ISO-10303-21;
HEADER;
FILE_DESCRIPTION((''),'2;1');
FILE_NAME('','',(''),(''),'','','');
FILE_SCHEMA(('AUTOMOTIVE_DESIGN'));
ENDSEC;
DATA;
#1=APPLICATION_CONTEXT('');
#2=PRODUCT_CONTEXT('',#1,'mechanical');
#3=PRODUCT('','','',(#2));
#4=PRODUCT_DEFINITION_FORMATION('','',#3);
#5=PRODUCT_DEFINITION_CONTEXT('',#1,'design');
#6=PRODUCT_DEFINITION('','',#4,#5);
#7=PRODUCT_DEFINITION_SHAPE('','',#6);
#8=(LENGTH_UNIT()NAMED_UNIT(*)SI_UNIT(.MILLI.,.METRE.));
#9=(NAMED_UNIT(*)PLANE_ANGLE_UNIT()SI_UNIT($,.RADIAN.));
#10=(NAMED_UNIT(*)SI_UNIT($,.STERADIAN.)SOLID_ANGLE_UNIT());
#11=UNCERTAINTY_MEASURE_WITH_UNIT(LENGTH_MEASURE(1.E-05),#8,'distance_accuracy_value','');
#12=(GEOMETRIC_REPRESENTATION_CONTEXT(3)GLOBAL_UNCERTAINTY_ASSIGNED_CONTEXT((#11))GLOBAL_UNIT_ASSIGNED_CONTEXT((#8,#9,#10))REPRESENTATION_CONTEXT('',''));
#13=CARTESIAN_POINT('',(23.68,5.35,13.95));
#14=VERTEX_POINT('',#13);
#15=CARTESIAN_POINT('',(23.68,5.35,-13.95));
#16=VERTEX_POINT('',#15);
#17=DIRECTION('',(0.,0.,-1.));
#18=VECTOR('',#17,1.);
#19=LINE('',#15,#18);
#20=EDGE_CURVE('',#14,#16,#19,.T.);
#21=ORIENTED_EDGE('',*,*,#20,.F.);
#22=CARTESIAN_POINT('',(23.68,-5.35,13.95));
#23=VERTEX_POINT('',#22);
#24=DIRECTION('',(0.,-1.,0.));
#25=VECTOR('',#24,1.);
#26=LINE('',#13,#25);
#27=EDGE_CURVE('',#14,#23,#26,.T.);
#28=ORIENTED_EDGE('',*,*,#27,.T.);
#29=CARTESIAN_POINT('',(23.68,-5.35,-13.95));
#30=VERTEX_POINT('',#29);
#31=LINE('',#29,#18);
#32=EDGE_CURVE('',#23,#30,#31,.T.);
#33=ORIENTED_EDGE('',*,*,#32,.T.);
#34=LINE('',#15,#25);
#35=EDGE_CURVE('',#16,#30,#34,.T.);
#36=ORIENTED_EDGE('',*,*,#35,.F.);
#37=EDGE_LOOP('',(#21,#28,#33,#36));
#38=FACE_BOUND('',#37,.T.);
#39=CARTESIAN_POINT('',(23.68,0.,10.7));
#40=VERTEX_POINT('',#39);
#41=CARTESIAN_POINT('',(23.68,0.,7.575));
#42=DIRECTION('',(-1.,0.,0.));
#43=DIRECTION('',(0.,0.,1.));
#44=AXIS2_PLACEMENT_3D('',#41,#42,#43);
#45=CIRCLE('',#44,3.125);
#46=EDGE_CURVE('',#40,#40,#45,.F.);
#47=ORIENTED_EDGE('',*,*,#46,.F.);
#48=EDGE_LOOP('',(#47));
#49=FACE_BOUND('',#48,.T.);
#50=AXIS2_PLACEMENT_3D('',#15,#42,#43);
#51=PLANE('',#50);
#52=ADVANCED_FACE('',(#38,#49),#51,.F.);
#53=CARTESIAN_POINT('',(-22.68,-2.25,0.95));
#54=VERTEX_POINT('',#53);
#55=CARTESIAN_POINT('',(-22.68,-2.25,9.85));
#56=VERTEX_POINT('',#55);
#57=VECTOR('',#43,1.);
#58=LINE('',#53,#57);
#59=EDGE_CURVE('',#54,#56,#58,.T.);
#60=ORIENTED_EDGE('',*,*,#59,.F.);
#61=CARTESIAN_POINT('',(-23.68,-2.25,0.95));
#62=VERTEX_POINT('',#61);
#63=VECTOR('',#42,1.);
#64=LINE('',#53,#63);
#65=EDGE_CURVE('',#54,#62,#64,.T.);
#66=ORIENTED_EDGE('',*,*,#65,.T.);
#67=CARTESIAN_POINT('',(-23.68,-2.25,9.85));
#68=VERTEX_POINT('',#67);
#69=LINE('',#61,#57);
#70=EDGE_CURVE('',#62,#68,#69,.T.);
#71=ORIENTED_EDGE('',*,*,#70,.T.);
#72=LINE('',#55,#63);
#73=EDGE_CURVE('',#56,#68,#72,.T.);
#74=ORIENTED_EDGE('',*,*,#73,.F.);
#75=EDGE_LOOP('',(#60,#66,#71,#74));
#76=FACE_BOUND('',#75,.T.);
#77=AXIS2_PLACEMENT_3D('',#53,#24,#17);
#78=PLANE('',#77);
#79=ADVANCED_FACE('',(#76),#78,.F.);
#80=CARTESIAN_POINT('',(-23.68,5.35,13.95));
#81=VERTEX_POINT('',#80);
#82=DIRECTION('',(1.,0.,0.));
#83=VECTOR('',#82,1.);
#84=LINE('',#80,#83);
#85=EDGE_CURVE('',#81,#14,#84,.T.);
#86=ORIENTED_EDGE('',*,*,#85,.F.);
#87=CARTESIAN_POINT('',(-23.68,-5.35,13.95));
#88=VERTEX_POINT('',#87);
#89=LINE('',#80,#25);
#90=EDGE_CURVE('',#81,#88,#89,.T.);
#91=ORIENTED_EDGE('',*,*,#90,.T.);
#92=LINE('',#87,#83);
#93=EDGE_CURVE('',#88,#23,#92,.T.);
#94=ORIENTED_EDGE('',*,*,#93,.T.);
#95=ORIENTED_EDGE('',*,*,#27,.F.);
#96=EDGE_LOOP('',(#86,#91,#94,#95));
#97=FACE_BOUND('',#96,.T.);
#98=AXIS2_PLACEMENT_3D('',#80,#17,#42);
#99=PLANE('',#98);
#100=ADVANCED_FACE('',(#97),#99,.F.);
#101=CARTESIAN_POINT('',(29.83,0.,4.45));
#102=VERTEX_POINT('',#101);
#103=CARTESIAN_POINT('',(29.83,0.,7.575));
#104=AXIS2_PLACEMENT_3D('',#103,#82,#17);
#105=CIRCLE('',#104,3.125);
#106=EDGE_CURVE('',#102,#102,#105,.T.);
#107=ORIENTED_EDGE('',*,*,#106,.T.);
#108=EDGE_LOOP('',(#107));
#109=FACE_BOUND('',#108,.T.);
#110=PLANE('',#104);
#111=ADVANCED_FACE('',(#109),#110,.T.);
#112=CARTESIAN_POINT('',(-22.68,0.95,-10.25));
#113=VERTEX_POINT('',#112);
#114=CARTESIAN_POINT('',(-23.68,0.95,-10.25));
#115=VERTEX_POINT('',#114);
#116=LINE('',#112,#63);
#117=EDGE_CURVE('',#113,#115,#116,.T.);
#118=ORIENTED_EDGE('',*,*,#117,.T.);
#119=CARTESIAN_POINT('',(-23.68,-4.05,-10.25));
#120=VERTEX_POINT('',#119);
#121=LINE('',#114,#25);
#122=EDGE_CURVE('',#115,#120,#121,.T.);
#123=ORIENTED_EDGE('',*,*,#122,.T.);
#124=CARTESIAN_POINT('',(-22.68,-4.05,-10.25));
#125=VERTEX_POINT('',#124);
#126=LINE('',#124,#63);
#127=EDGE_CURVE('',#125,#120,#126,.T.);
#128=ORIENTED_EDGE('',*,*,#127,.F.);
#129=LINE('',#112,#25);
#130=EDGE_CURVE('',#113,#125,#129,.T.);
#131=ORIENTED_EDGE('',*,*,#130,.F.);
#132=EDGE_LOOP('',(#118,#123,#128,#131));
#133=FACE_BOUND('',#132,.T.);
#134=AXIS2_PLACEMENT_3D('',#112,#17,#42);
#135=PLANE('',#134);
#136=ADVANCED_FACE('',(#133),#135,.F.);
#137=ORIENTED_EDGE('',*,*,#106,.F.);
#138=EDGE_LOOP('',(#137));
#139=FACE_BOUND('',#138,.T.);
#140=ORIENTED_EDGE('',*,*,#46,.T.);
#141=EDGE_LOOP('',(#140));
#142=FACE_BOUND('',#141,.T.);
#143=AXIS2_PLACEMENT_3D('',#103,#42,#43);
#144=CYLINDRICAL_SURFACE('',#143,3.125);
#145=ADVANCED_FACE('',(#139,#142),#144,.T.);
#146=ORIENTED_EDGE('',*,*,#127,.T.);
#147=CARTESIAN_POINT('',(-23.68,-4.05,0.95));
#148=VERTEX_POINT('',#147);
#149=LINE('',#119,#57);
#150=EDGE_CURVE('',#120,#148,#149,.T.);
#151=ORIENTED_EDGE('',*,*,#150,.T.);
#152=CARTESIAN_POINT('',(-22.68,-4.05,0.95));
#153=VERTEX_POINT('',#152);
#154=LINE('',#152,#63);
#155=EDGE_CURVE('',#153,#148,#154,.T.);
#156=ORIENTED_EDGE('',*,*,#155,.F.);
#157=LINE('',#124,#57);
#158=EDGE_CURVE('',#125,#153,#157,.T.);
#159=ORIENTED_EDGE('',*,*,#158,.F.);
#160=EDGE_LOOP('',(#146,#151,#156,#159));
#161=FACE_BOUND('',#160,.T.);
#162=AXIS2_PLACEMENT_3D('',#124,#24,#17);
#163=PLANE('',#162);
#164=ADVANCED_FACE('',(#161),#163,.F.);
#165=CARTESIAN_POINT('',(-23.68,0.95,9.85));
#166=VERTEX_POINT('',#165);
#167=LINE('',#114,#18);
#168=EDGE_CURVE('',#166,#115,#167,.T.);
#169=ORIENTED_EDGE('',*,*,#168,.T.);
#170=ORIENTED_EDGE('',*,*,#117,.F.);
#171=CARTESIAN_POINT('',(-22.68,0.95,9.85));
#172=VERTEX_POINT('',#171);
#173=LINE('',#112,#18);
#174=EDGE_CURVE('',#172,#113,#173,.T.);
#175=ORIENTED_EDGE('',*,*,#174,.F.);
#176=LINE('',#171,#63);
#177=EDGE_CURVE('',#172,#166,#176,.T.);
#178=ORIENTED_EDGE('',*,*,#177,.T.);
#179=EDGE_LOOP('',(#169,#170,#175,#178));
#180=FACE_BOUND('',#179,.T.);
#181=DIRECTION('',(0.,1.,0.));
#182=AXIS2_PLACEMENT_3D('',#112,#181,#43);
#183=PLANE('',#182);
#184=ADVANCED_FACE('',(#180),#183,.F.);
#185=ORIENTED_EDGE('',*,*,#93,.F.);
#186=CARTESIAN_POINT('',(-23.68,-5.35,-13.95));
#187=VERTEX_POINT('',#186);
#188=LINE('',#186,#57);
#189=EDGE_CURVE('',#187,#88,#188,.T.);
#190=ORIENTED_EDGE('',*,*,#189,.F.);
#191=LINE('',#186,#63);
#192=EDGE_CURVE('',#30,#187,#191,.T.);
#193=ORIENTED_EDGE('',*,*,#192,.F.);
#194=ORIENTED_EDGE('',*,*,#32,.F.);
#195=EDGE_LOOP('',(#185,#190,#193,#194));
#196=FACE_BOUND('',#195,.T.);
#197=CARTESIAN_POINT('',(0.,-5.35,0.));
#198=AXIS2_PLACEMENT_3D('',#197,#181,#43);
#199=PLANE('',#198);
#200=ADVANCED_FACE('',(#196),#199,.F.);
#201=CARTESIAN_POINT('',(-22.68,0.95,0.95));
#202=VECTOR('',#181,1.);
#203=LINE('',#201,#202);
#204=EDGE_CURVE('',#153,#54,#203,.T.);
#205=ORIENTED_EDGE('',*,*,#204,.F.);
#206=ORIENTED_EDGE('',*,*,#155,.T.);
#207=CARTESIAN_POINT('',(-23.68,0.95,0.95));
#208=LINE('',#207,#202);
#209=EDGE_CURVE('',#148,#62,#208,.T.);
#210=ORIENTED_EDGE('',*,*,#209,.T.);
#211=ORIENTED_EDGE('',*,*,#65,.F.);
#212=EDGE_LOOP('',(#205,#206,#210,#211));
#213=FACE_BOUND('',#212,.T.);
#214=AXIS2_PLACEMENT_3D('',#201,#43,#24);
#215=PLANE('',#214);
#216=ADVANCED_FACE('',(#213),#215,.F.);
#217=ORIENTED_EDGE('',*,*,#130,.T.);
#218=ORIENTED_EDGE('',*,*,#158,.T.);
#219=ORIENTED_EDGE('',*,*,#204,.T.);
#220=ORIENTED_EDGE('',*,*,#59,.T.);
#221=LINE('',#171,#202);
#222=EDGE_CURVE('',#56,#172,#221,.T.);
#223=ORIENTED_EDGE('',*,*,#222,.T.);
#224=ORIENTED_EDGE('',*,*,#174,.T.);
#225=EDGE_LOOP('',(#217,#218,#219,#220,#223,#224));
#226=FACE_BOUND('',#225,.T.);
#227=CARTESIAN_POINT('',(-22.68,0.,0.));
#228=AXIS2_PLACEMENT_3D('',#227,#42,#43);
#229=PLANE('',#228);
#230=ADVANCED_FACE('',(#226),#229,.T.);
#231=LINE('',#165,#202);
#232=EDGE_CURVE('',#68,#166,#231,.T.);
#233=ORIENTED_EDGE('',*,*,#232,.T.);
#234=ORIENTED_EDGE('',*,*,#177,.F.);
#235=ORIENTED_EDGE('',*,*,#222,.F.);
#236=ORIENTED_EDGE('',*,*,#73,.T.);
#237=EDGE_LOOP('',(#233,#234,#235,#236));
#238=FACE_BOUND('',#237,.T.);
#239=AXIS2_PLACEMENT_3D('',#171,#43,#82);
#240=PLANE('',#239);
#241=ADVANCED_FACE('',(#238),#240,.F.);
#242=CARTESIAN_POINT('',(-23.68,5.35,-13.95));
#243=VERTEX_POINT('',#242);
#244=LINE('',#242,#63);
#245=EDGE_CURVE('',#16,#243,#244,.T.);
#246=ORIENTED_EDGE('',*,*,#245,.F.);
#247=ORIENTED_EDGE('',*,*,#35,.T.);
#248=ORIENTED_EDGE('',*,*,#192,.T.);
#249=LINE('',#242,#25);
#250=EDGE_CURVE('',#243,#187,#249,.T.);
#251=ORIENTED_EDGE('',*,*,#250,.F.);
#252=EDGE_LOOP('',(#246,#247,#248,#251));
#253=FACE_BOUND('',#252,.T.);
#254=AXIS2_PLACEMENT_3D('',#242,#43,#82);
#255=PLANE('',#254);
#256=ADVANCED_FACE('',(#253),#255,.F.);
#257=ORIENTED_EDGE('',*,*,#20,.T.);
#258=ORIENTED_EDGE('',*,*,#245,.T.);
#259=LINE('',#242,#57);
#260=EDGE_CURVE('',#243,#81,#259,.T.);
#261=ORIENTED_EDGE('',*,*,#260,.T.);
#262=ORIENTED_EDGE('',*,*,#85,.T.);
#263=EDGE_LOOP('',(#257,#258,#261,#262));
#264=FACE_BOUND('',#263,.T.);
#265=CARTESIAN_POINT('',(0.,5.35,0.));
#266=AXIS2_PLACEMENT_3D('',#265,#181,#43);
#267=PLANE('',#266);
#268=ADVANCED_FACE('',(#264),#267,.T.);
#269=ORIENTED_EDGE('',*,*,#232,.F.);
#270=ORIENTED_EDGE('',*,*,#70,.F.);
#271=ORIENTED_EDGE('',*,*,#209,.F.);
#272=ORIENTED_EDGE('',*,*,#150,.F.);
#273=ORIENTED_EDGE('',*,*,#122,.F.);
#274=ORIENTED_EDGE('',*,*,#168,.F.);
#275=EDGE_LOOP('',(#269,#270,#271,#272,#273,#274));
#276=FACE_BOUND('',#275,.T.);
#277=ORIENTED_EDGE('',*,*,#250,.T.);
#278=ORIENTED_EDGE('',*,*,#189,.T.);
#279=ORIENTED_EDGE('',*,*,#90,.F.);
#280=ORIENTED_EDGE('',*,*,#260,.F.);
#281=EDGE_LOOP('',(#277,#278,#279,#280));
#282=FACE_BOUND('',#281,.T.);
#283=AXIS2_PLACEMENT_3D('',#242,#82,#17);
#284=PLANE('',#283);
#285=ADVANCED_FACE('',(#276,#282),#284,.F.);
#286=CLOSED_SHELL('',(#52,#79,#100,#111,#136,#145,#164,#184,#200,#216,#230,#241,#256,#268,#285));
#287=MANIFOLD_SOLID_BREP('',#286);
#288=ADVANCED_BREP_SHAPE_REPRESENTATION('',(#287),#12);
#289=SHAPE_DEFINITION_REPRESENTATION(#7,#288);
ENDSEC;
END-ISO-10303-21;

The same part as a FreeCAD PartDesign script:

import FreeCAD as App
import Part
import Sketcher
from FreeCAD import Vector


def add_polygon(sketch, points):
    """Adds a closed chain of lines whose ends are joined by coincident constraints."""
    first, n = sketch.GeometryCount, len(points)
    for a, b in zip(points, points[1:] + points[:1]):
        sketch.addGeometry(Part.LineSegment(App.Vector(*a, 0), App.Vector(*b, 0)), False)
    for i in range(n):
        sketch.addConstraint(Sketcher.Constraint("Coincident", first + i, 2, first + (i + 1) % n, 1))

doc = App.newDocument("Part")
params = doc.addObject("Spreadsheet::Sheet", "Params")
for row, (alias, value) in enumerate([
    ("sketch1_height", "27.9 mm"),
    ("sketch1_width", "47.36 mm"),
    ("pad1_length", "10.7 mm"),
    ("sketch2_diameter", "6.25 mm"),
    ("pad2_length", "6.15 mm"),
    ("sketch3_width", "5 mm"),
    ("sketch3_height", "11.2 mm"),
    ("pocket1_length", "1 mm"),
    ("sketch4_width", "3.2 mm"),
    ("sketch4_height", "8.9 mm"),
    ("pocket2_length", "1 mm"),
], start=1):
    params.set(f"A{row}", alias)
    params.set(f"B{row}", "=" + value)
    params.setAlias(f"B{row}", alias)

body = doc.addObject("PartDesign::Body", "Body")

# Sketch on XZ plane
sketch1 = doc.addObject("Sketcher::SketchObject", "Sketch")
body.addObject(sketch1)
sketch1.AttachmentSupport = (doc.XZ_Plane, [""])
sketch1.MapMode = "FlatFace"
add_polygon(sketch1, [(-24, -14), (-24, 14), (24, 14), (24, -14)])  # lines 0-3
sketch1.addConstraint([
    Sketcher.Constraint("Vertical", 0),
    Sketcher.Constraint("Horizontal", 1),
    Sketcher.Constraint("Vertical", 2),
    Sketcher.Constraint("Horizontal", 3),
    Sketcher.Constraint("Symmetric", 0, 2, 2, 2, -1, 1),
    Sketcher.Constraint("DistanceY", 0, 1, 0, 2, 27.9),
    Sketcher.Constraint("DistanceX", 1, 1, 1, 2, 47.36),
])
sketch1.setExpression("Constraints[9]", "Params.sketch1_height")
sketch1.setExpression("Constraints[10]", "Params.sketch1_width")
pad1 = doc.addObject("PartDesign::Pad", "Pad")
body.addObject(pad1)
pad1.Profile = sketch1
pad1.setExpression("Length", "Params.pad1_length")
pad1.Midplane = True

# Sketch on YZ plane
sketch2 = doc.addObject("Sketcher::SketchObject", "Sketch001")
body.addObject(sketch2)
sketch2.AttachmentSupport = (doc.YZ_Plane, [""])
sketch2.MapMode = "FlatFace"
sketch2.AttachmentOffset = App.Placement(Vector(0, 0, 23.68), App.Rotation())
sketch2.addGeometry(Part.Circle(Vector(0, 7.6, 0), Vector(0, 0, 1), 3.1), False)
sketch2.addConstraint([
    Sketcher.Constraint("PointOnObject", 0, 3, -2),
    Sketcher.Constraint("Diameter", 0, 6.25),
    Sketcher.Constraint("DistanceY", -1, 1, 0, 3, 7.575),
])
sketch2.setExpression("Constraints[1]", "Params.sketch2_diameter")
pad2 = doc.addObject("PartDesign::Pad", "Pad001")
body.addObject(pad2)
pad2.Profile = sketch2
pad2.setExpression("Length", "Params.pad2_length")

# Sketch on YZ plane
sketch3 = doc.addObject("Sketcher::SketchObject", "Sketch002")
body.addObject(sketch3)
sketch3.AttachmentSupport = (doc.YZ_Plane, [""])
sketch3.MapMode = "FlatFace"
sketch3.AttachmentOffset = App.Placement(Vector(0, 0, -23.68), App.Rotation())
add_polygon(sketch3, [(1, -10), (-4, -10), (-4, 1), (1, 1)])  # lines 0-3
sketch3.addConstraint([
    Sketcher.Constraint("Horizontal", 0),
    Sketcher.Constraint("Vertical", 1),
    Sketcher.Constraint("Horizontal", 2),
    Sketcher.Constraint("Vertical", 3),
    Sketcher.Constraint("DistanceX", 0, 2, 0, 1, 5.0),
    Sketcher.Constraint("DistanceY", 1, 1, 1, 2, 11.2),
    Sketcher.Constraint("DistanceX", 0, 2, -1, 1, 4.05),
    Sketcher.Constraint("DistanceY", 0, 2, -1, 1, 10.25),
])
sketch3.setExpression("Constraints[8]", "Params.sketch3_width")
sketch3.setExpression("Constraints[9]", "Params.sketch3_height")
pocket1 = doc.addObject("PartDesign::Pocket", "Pocket")
body.addObject(pocket1)
pocket1.Profile = sketch3
pocket1.setExpression("Length", "Params.pocket1_length")
pocket1.Reversed = True

# Sketch on YZ plane
sketch4 = doc.addObject("Sketcher::SketchObject", "Sketch003")
body.addObject(sketch4)
sketch4.AttachmentSupport = (doc.YZ_Plane, [""])
sketch4.MapMode = "FlatFace"
sketch4.AttachmentOffset = App.Placement(Vector(0, 0, -23.68), App.Rotation())
add_polygon(sketch4, [(0.9, 0.9), (-2.2, 0.9), (-2.2, 9.8), (0.9, 9.8)])  # lines 0-3
sketch4.addConstraint([
    Sketcher.Constraint("Horizontal", 0),
    Sketcher.Constraint("Vertical", 1),
    Sketcher.Constraint("Horizontal", 2),
    Sketcher.Constraint("Vertical", 3),
    Sketcher.Constraint("DistanceX", 0, 2, 0, 1, 3.2),
    Sketcher.Constraint("DistanceY", 1, 1, 1, 2, 8.9),
    Sketcher.Constraint("DistanceX", 0, 2, -1, 1, 2.25),
    Sketcher.Constraint("DistanceY", -1, 1, 0, 2, 0.95),
])
sketch4.setExpression("Constraints[8]", "Params.sketch4_width")
sketch4.setExpression("Constraints[9]", "Params.sketch4_height")
pocket2 = doc.addObject("PartDesign::Pocket", "Pocket001")
body.addObject(pocket2)
pocket2.Profile = sketch4
pocket2.setExpression("Length", "Params.pocket2_length")
pocket2.Reversed = True

doc.recompute()
